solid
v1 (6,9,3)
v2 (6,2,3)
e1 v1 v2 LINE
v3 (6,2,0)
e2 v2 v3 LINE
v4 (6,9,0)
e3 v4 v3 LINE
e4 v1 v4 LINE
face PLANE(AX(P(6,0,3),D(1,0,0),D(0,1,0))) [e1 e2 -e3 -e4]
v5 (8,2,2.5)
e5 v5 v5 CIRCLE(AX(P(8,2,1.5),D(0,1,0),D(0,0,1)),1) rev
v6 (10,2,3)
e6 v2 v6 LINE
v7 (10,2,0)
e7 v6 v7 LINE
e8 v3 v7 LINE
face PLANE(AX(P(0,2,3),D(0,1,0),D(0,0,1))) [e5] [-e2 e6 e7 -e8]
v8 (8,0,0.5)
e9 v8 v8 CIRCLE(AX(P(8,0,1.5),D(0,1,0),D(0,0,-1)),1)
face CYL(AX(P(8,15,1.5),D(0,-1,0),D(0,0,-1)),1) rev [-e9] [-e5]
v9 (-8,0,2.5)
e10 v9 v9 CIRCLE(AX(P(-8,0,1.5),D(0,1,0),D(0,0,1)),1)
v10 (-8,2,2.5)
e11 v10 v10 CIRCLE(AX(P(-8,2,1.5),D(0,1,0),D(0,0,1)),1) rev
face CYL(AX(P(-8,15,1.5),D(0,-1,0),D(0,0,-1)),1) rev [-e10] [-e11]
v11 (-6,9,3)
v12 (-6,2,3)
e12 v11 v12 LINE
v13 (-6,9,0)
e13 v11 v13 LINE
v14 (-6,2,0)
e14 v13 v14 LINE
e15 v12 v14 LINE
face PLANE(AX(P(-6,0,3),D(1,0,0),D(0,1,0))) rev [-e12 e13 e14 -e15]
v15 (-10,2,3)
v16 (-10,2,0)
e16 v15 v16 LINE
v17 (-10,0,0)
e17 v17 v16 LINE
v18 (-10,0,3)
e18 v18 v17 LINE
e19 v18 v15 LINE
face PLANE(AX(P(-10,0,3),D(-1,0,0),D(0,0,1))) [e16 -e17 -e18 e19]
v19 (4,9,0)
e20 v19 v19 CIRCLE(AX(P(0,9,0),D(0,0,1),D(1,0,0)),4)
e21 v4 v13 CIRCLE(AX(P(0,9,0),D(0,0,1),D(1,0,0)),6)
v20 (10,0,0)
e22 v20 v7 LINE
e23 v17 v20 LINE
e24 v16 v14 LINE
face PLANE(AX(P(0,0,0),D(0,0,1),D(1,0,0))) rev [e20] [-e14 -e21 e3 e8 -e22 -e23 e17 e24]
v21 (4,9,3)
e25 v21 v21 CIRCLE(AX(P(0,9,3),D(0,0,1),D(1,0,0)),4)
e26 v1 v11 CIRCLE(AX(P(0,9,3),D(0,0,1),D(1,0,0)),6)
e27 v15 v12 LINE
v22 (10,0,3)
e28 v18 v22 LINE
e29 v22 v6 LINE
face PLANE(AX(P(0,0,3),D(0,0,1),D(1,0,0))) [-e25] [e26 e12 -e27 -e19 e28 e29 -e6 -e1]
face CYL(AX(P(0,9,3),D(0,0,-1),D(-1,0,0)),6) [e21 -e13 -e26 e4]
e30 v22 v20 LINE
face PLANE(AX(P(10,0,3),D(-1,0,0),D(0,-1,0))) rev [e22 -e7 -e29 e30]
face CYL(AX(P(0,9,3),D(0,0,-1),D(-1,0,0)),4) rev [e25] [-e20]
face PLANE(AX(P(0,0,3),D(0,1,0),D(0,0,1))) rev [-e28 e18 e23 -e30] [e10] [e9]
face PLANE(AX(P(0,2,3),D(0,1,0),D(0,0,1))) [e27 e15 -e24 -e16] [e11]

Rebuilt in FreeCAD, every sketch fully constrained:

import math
import FreeCAD as App
import Part
import Sketcher
from FreeCAD import Vector
Q = App.Units.Quantity

doc = App.newDocument("Part")
body = doc.addObject("PartDesign::Body", "Body")

# Sketch on XY plane
sketch1 = body.newObject("Sketcher::SketchObject", "Sketch")
sketch1.AttachmentSupport = (doc.getObject("XY_Plane"), [""])
sketch1.MapMode = "FlatFace"
sketch1.addGeometry(Part.LineSegment(Vector(-10, 2, 0), Vector(-10, 0, 0)), False)
sketch1.addGeometry(Part.LineSegment(Vector(-10, 0, 0), Vector(10, 0, 0)), False)
sketch1.addGeometry(Part.LineSegment(Vector(10, 0, 0), Vector(10, 2, 0)), False)
sketch1.addGeometry(Part.LineSegment(Vector(10, 2, 0), Vector(6, 2, 0)), False)
sketch1.addGeometry(Part.LineSegment(Vector(6, 2, 0), Vector(6, 9, 0)), False)
sketch1.addGeometry(Part.ArcOfCircle(Part.Circle(Vector(0, 9, 0), Vector(0, 0, 1), 6), math.radians(0), math.radians(180)), False)
sketch1.addGeometry(Part.LineSegment(Vector(-6, 9, 0), Vector(-6, 2, 0)), False)
sketch1.addGeometry(Part.LineSegment(Vector(-6, 2, 0), Vector(-10, 2, 0)), False)
sketch1.addGeometry(Part.Circle(Vector(0, 9, 0), Vector(0, 0, 1), 4), False)
sketch1.addConstraint(Sketcher.Constraint("Coincident", 0, 2, 1, 1))
sketch1.addConstraint(Sketcher.Constraint("Coincident", 1, 2, 2, 1))
sketch1.addConstraint(Sketcher.Constraint("Coincident", 2, 2, 3, 1))
sketch1.addConstraint(Sketcher.Constraint("Coincident", 3, 2, 4, 1))
sketch1.addConstraint(Sketcher.Constraint("Tangent", 4, 2, 5, 1))
sketch1.addConstraint(Sketcher.Constraint("Tangent", 5, 2, 6, 1))
sketch1.addConstraint(Sketcher.Constraint("Coincident", 6, 2, 7, 1))
sketch1.addConstraint(Sketcher.Constraint("Coincident", 7, 2, 0, 1))
sketch1.addConstraint(Sketcher.Constraint("Vertical", 0))
sketch1.addConstraint(Sketcher.Constraint("Horizontal", 1))
sketch1.addConstraint(Sketcher.Constraint("Vertical", 2))
sketch1.addConstraint(Sketcher.Constraint("Horizontal", 3))
sketch1.addConstraint(Sketcher.Constraint("Vertical", 4))
sketch1.addConstraint(Sketcher.Constraint("Vertical", 6))
sketch1.addConstraint(Sketcher.Constraint("Horizontal", 7))
sketch1.addConstraint(Sketcher.Constraint("Coincident", 8, 3, 5, 3))
sketch1.addConstraint(Sketcher.Constraint("Symmetric", 0, 2, 1, 2, -1, 1))
sketch1.addConstraint(Sketcher.Constraint("Symmetric", 3, 2, 6, 2, -2))
sketch1.addConstraint(Sketcher.Constraint("Diameter", 8, Q("8 mm")))
sketch1.addConstraint(Sketcher.Constraint("Radius", 5, Q("6 mm")))
sketch1.addConstraint(Sketcher.Constraint("DistanceX", 1, 1, 1, 2, Q("20 mm")))
sketch1.addConstraint(Sketcher.Constraint("DistanceY", 0, 2, 0, 1, Q("2 mm")))
sketch1.addConstraint(Sketcher.Constraint("DistanceY", 4, 1, 4, 2, Q("7 mm")))
pad1 = body.newObject("PartDesign::Pad", "Pad")
pad1.Profile = sketch1
pad1.Length = 3

# Sketch on XZ plane
sketch2 = body.newObject("Sketcher::SketchObject", "Sketch001")
sketch2.AttachmentSupport = (doc.getObject("XZ_Plane"), [""])
sketch2.MapMode = "FlatFace"
sketch2.addGeometry(Part.Circle(Vector(-8, 1.5, 0), Vector(0, 0, 1), 1), False)
sketch2.addGeometry(Part.Circle(Vector(8, 1.5, 0), Vector(0, 0, 1), 1), False)
sketch2.addConstraint(Sketcher.Constraint("Equal", 0, 1))
sketch2.addConstraint(Sketcher.Constraint("Symmetric", 0, 3, 1, 3, -2))
sketch2.addConstraint(Sketcher.Constraint("Diameter", 0, Q("2 mm")))
sketch2.addConstraint(Sketcher.Constraint("DistanceX", 0, 3, -1, 1, Q("8 mm")))
sketch2.addConstraint(Sketcher.Constraint("DistanceY", -1, 1, 0, 3, Q("1.5 mm")))
pocket1 = body.newObject("PartDesign::Pocket", "Pocket")
pocket1.Profile = sketch2
pocket1.Type = "ThroughAll"

doc.recompute()
